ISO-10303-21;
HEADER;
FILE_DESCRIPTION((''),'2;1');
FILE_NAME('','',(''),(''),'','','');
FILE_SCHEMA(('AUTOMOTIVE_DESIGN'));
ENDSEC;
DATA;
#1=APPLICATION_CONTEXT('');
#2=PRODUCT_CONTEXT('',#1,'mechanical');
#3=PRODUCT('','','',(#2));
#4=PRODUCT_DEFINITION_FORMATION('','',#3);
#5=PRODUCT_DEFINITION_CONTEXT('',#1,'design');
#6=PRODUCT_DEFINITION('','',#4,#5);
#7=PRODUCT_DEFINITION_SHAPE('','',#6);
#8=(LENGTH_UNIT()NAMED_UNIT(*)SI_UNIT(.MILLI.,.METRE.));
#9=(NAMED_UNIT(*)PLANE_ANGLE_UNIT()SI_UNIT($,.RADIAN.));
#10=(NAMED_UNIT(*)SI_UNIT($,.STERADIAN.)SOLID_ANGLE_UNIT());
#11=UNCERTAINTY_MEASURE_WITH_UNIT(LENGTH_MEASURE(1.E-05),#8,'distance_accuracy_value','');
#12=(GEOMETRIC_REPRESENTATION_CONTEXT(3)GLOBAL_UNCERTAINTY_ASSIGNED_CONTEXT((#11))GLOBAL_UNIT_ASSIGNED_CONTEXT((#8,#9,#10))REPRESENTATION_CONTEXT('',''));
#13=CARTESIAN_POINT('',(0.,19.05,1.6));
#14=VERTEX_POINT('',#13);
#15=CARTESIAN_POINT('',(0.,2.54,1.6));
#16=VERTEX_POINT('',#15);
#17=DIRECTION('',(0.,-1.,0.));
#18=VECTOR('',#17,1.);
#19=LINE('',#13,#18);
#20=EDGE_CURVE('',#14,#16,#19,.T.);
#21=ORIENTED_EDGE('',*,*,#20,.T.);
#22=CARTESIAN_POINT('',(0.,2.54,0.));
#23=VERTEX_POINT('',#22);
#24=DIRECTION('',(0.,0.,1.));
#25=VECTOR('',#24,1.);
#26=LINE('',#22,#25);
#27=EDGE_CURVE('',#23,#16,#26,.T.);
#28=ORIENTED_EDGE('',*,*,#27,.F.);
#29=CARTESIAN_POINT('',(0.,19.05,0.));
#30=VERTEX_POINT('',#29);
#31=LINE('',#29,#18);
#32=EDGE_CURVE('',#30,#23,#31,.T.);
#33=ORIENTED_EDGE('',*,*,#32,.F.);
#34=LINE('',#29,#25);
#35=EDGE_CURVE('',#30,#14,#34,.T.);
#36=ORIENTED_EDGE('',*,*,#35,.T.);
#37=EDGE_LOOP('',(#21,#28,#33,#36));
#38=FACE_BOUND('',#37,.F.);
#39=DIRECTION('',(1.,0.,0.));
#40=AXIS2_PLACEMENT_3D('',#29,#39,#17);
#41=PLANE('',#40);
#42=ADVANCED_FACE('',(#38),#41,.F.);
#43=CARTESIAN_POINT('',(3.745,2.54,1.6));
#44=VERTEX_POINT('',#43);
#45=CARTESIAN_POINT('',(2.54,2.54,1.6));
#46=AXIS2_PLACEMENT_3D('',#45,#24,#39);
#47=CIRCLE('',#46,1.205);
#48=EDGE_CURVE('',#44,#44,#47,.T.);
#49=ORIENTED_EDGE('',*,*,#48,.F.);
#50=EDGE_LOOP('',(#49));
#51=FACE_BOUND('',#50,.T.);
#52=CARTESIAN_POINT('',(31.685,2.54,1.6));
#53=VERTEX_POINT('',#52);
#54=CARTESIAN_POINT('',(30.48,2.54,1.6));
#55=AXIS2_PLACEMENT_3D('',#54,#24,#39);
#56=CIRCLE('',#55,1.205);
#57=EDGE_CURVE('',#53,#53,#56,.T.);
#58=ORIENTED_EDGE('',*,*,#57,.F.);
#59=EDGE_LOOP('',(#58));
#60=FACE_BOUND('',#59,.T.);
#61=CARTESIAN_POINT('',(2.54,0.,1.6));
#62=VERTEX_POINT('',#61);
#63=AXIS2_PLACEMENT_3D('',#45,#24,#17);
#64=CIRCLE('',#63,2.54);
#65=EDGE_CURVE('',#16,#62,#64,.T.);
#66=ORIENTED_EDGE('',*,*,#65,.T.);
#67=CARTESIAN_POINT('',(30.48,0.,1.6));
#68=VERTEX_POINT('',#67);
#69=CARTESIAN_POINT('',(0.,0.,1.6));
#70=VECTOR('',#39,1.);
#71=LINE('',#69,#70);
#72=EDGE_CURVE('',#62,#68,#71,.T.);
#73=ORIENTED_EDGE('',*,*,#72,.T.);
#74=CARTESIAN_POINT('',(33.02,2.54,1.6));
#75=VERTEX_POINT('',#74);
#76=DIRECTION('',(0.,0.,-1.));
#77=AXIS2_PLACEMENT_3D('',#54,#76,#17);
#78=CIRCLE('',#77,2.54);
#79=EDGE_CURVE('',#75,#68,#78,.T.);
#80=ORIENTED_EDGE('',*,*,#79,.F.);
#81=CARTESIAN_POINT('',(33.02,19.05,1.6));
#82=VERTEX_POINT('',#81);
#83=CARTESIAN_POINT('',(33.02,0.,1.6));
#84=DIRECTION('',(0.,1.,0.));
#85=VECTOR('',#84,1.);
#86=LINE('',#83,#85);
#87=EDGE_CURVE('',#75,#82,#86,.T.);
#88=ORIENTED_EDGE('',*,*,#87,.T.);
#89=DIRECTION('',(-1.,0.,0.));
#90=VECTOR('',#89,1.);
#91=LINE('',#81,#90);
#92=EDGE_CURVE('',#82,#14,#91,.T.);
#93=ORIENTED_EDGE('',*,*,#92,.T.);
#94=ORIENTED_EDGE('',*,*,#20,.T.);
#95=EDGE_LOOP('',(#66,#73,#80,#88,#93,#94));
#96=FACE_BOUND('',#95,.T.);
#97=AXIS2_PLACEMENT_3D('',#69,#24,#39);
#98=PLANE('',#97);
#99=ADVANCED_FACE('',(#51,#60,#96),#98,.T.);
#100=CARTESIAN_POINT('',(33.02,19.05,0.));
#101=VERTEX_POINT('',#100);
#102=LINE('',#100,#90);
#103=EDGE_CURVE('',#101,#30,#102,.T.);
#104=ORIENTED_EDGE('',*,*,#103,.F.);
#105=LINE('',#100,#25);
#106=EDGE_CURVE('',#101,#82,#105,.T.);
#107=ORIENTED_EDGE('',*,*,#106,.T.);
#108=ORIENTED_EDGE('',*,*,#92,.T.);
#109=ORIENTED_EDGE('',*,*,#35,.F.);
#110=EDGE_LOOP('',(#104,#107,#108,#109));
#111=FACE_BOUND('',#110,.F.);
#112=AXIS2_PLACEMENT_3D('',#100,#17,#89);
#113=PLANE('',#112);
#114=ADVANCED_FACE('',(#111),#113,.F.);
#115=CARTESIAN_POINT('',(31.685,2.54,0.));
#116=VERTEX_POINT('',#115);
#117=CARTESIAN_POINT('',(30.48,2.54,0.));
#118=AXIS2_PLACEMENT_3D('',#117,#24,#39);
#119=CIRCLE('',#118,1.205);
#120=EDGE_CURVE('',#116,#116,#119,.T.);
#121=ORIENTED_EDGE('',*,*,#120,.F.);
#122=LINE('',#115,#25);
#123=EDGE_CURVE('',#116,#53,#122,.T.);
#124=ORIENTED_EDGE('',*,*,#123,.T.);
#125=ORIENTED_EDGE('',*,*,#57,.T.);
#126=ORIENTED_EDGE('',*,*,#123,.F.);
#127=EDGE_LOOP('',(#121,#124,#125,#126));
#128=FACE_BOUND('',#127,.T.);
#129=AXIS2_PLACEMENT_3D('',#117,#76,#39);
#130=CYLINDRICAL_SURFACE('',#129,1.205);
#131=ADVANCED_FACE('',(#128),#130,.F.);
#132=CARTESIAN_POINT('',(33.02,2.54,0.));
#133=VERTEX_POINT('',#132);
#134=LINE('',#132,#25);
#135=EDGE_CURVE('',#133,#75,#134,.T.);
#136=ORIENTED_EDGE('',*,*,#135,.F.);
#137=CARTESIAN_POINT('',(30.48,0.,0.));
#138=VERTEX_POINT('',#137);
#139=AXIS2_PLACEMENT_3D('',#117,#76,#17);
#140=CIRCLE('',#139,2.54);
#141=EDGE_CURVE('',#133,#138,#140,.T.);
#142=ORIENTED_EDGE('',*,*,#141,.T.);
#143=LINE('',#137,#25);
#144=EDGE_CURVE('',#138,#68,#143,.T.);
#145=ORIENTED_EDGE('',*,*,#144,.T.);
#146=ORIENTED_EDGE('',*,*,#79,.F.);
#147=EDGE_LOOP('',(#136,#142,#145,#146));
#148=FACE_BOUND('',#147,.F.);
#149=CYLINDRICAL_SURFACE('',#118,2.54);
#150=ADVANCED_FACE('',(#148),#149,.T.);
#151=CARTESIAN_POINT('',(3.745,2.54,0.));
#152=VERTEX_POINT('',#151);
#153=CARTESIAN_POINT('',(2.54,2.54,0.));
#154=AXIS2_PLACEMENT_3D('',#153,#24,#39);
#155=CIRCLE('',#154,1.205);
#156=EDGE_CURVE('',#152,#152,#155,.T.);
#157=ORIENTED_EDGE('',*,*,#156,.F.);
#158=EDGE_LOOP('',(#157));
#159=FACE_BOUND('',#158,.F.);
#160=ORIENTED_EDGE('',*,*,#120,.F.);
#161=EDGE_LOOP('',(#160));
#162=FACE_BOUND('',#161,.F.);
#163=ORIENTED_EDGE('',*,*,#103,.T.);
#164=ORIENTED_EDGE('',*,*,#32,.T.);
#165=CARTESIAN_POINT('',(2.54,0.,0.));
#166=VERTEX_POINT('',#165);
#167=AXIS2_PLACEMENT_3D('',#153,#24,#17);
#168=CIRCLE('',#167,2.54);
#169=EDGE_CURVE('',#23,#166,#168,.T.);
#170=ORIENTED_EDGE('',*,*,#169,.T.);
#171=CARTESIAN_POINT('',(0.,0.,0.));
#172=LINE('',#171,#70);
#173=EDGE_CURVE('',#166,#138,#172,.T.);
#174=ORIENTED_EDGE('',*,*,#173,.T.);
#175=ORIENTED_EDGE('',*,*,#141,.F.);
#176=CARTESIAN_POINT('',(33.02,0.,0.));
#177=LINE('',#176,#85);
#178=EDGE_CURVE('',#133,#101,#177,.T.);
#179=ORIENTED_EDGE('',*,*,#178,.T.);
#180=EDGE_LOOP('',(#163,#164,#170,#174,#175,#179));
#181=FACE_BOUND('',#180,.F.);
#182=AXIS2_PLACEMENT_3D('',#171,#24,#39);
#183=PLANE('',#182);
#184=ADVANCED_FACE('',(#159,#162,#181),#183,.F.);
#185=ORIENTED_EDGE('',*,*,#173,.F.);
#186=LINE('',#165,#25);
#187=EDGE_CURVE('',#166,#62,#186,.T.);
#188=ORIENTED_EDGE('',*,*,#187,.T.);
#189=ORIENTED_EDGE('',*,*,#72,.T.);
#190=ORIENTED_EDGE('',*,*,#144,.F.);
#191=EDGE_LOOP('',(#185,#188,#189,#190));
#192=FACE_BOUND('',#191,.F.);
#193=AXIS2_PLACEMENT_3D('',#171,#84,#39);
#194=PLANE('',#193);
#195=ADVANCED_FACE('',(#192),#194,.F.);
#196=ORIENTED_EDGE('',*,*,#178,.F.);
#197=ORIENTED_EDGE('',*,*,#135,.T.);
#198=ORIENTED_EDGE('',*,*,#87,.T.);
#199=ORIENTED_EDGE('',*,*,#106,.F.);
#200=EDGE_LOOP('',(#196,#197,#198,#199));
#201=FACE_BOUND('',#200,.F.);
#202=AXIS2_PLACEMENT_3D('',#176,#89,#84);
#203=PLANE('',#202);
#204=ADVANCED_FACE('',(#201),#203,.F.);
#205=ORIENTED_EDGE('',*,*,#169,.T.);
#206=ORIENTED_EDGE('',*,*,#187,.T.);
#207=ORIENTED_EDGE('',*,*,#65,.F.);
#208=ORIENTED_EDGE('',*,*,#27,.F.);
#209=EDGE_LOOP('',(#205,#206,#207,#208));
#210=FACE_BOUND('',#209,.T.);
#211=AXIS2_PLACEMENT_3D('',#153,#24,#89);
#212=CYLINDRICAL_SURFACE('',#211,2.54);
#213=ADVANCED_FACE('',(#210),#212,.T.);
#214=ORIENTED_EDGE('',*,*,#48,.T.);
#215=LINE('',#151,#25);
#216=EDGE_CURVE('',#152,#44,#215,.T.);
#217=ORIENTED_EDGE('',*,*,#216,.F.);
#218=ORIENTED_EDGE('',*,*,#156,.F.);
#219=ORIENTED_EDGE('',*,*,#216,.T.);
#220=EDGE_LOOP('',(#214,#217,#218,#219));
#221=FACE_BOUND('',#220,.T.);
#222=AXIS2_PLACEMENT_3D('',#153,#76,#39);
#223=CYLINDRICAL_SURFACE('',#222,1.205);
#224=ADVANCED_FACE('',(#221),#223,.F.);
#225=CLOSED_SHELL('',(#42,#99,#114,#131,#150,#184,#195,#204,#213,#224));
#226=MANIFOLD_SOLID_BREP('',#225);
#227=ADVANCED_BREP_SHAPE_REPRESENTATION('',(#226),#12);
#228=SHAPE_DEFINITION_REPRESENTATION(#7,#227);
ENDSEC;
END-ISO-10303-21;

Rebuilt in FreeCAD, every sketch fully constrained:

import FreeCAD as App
import Part
import Sketcher
Q = App.Units.Quantity


def edges_at(feature, points):
    """Names of the edges that pass closest to the given points."""
    edges = feature.Shape.Edges
    near = lambda p: min(range(len(edges)), key=lambda i: edges[i].distToShape(Part.Vertex(*p))[0])
    return sorted({f"Edge{near(p) + 1}" for p in points})


def add_polygon(sketch, points):
    """Adds a closed chain of lines whose ends are joined by coincident constraints."""
    first, n = sketch.GeometryCount, len(points)
    for a, b in zip(points, points[1:] + points[:1]):
        sketch.addGeometry(Part.LineSegment(App.Vector(*a, 0), App.Vector(*b, 0)), False)
    for i in range(n):
        sketch.addConstraint(Sketcher.Constraint("Coincident", first + i, 2, first + (i + 1) % n, 1))

doc = App.newDocument("Part")
body = doc.addObject("PartDesign::Body", "Body")

# Sketch on XY plane
sketch1 = body.newObject("Sketcher::SketchObject", "Sketch")
sketch1.AttachmentSupport = (doc.getObject("XY_Plane"), [""])
sketch1.MapMode = "FlatFace"
add_polygon(sketch1, [(0, 19.1), (0, 0), (33, 0), (33, 19.1)])  # lines 0-3
sketch1.addGeometry(Part.Circle(App.Vector(2.5, 2.5, 0), App.Vector(0, 0, 1), 1.2), False)  # 4
sketch1.addGeometry(Part.Circle(App.Vector(30.5, 2.5, 0), App.Vector(0, 0, 1), 1.2), False)  # 5
sketch1.addConstraint([
    Sketcher.Constraint("Vertical", 0),
    Sketcher.Constraint("Horizontal", 1),
    Sketcher.Constraint("Vertical", 2),
    Sketcher.Constraint("Horizontal", 3),
    Sketcher.Constraint("Coincident", 0, 2, -1, 1),
    Sketcher.Constraint("Equal", 4, 5),
    Sketcher.Constraint("Horizontal", 4, 3, 5, 3),
    Sketcher.Constraint("DistanceX", 1, 1, 1, 2, Q("1.3 in")),
    Sketcher.Constraint("DistanceY", 0, 2, 0, 1, Q("0.75 in")),
    Sketcher.Constraint("DistanceX", -1, 1, 4, 3, Q("0.1 in")),
    Sketcher.Constraint("DistanceY", -1, 1, 4, 3, Q("0.1 in")),
    Sketcher.Constraint("DistanceX", -1, 1, 5, 3, Q("1.2 in")),
    Sketcher.Constraint("Diameter", 4, Q("2.41 mm")),
])
pad1 = body.newObject("PartDesign::Pad", "Pad")
pad1.Profile = sketch1
pad1.Length = Q("0.0629921 in")
doc.recompute()

fillet = body.newObject("PartDesign::Fillet", "Fillet")
fillet.Base = (pad1, edges_at(pad1, [(0, 0, 0.8), (33.02, 0, 0.8)]))
fillet.Radius = Q("0.1 in")

doc.recompute()
